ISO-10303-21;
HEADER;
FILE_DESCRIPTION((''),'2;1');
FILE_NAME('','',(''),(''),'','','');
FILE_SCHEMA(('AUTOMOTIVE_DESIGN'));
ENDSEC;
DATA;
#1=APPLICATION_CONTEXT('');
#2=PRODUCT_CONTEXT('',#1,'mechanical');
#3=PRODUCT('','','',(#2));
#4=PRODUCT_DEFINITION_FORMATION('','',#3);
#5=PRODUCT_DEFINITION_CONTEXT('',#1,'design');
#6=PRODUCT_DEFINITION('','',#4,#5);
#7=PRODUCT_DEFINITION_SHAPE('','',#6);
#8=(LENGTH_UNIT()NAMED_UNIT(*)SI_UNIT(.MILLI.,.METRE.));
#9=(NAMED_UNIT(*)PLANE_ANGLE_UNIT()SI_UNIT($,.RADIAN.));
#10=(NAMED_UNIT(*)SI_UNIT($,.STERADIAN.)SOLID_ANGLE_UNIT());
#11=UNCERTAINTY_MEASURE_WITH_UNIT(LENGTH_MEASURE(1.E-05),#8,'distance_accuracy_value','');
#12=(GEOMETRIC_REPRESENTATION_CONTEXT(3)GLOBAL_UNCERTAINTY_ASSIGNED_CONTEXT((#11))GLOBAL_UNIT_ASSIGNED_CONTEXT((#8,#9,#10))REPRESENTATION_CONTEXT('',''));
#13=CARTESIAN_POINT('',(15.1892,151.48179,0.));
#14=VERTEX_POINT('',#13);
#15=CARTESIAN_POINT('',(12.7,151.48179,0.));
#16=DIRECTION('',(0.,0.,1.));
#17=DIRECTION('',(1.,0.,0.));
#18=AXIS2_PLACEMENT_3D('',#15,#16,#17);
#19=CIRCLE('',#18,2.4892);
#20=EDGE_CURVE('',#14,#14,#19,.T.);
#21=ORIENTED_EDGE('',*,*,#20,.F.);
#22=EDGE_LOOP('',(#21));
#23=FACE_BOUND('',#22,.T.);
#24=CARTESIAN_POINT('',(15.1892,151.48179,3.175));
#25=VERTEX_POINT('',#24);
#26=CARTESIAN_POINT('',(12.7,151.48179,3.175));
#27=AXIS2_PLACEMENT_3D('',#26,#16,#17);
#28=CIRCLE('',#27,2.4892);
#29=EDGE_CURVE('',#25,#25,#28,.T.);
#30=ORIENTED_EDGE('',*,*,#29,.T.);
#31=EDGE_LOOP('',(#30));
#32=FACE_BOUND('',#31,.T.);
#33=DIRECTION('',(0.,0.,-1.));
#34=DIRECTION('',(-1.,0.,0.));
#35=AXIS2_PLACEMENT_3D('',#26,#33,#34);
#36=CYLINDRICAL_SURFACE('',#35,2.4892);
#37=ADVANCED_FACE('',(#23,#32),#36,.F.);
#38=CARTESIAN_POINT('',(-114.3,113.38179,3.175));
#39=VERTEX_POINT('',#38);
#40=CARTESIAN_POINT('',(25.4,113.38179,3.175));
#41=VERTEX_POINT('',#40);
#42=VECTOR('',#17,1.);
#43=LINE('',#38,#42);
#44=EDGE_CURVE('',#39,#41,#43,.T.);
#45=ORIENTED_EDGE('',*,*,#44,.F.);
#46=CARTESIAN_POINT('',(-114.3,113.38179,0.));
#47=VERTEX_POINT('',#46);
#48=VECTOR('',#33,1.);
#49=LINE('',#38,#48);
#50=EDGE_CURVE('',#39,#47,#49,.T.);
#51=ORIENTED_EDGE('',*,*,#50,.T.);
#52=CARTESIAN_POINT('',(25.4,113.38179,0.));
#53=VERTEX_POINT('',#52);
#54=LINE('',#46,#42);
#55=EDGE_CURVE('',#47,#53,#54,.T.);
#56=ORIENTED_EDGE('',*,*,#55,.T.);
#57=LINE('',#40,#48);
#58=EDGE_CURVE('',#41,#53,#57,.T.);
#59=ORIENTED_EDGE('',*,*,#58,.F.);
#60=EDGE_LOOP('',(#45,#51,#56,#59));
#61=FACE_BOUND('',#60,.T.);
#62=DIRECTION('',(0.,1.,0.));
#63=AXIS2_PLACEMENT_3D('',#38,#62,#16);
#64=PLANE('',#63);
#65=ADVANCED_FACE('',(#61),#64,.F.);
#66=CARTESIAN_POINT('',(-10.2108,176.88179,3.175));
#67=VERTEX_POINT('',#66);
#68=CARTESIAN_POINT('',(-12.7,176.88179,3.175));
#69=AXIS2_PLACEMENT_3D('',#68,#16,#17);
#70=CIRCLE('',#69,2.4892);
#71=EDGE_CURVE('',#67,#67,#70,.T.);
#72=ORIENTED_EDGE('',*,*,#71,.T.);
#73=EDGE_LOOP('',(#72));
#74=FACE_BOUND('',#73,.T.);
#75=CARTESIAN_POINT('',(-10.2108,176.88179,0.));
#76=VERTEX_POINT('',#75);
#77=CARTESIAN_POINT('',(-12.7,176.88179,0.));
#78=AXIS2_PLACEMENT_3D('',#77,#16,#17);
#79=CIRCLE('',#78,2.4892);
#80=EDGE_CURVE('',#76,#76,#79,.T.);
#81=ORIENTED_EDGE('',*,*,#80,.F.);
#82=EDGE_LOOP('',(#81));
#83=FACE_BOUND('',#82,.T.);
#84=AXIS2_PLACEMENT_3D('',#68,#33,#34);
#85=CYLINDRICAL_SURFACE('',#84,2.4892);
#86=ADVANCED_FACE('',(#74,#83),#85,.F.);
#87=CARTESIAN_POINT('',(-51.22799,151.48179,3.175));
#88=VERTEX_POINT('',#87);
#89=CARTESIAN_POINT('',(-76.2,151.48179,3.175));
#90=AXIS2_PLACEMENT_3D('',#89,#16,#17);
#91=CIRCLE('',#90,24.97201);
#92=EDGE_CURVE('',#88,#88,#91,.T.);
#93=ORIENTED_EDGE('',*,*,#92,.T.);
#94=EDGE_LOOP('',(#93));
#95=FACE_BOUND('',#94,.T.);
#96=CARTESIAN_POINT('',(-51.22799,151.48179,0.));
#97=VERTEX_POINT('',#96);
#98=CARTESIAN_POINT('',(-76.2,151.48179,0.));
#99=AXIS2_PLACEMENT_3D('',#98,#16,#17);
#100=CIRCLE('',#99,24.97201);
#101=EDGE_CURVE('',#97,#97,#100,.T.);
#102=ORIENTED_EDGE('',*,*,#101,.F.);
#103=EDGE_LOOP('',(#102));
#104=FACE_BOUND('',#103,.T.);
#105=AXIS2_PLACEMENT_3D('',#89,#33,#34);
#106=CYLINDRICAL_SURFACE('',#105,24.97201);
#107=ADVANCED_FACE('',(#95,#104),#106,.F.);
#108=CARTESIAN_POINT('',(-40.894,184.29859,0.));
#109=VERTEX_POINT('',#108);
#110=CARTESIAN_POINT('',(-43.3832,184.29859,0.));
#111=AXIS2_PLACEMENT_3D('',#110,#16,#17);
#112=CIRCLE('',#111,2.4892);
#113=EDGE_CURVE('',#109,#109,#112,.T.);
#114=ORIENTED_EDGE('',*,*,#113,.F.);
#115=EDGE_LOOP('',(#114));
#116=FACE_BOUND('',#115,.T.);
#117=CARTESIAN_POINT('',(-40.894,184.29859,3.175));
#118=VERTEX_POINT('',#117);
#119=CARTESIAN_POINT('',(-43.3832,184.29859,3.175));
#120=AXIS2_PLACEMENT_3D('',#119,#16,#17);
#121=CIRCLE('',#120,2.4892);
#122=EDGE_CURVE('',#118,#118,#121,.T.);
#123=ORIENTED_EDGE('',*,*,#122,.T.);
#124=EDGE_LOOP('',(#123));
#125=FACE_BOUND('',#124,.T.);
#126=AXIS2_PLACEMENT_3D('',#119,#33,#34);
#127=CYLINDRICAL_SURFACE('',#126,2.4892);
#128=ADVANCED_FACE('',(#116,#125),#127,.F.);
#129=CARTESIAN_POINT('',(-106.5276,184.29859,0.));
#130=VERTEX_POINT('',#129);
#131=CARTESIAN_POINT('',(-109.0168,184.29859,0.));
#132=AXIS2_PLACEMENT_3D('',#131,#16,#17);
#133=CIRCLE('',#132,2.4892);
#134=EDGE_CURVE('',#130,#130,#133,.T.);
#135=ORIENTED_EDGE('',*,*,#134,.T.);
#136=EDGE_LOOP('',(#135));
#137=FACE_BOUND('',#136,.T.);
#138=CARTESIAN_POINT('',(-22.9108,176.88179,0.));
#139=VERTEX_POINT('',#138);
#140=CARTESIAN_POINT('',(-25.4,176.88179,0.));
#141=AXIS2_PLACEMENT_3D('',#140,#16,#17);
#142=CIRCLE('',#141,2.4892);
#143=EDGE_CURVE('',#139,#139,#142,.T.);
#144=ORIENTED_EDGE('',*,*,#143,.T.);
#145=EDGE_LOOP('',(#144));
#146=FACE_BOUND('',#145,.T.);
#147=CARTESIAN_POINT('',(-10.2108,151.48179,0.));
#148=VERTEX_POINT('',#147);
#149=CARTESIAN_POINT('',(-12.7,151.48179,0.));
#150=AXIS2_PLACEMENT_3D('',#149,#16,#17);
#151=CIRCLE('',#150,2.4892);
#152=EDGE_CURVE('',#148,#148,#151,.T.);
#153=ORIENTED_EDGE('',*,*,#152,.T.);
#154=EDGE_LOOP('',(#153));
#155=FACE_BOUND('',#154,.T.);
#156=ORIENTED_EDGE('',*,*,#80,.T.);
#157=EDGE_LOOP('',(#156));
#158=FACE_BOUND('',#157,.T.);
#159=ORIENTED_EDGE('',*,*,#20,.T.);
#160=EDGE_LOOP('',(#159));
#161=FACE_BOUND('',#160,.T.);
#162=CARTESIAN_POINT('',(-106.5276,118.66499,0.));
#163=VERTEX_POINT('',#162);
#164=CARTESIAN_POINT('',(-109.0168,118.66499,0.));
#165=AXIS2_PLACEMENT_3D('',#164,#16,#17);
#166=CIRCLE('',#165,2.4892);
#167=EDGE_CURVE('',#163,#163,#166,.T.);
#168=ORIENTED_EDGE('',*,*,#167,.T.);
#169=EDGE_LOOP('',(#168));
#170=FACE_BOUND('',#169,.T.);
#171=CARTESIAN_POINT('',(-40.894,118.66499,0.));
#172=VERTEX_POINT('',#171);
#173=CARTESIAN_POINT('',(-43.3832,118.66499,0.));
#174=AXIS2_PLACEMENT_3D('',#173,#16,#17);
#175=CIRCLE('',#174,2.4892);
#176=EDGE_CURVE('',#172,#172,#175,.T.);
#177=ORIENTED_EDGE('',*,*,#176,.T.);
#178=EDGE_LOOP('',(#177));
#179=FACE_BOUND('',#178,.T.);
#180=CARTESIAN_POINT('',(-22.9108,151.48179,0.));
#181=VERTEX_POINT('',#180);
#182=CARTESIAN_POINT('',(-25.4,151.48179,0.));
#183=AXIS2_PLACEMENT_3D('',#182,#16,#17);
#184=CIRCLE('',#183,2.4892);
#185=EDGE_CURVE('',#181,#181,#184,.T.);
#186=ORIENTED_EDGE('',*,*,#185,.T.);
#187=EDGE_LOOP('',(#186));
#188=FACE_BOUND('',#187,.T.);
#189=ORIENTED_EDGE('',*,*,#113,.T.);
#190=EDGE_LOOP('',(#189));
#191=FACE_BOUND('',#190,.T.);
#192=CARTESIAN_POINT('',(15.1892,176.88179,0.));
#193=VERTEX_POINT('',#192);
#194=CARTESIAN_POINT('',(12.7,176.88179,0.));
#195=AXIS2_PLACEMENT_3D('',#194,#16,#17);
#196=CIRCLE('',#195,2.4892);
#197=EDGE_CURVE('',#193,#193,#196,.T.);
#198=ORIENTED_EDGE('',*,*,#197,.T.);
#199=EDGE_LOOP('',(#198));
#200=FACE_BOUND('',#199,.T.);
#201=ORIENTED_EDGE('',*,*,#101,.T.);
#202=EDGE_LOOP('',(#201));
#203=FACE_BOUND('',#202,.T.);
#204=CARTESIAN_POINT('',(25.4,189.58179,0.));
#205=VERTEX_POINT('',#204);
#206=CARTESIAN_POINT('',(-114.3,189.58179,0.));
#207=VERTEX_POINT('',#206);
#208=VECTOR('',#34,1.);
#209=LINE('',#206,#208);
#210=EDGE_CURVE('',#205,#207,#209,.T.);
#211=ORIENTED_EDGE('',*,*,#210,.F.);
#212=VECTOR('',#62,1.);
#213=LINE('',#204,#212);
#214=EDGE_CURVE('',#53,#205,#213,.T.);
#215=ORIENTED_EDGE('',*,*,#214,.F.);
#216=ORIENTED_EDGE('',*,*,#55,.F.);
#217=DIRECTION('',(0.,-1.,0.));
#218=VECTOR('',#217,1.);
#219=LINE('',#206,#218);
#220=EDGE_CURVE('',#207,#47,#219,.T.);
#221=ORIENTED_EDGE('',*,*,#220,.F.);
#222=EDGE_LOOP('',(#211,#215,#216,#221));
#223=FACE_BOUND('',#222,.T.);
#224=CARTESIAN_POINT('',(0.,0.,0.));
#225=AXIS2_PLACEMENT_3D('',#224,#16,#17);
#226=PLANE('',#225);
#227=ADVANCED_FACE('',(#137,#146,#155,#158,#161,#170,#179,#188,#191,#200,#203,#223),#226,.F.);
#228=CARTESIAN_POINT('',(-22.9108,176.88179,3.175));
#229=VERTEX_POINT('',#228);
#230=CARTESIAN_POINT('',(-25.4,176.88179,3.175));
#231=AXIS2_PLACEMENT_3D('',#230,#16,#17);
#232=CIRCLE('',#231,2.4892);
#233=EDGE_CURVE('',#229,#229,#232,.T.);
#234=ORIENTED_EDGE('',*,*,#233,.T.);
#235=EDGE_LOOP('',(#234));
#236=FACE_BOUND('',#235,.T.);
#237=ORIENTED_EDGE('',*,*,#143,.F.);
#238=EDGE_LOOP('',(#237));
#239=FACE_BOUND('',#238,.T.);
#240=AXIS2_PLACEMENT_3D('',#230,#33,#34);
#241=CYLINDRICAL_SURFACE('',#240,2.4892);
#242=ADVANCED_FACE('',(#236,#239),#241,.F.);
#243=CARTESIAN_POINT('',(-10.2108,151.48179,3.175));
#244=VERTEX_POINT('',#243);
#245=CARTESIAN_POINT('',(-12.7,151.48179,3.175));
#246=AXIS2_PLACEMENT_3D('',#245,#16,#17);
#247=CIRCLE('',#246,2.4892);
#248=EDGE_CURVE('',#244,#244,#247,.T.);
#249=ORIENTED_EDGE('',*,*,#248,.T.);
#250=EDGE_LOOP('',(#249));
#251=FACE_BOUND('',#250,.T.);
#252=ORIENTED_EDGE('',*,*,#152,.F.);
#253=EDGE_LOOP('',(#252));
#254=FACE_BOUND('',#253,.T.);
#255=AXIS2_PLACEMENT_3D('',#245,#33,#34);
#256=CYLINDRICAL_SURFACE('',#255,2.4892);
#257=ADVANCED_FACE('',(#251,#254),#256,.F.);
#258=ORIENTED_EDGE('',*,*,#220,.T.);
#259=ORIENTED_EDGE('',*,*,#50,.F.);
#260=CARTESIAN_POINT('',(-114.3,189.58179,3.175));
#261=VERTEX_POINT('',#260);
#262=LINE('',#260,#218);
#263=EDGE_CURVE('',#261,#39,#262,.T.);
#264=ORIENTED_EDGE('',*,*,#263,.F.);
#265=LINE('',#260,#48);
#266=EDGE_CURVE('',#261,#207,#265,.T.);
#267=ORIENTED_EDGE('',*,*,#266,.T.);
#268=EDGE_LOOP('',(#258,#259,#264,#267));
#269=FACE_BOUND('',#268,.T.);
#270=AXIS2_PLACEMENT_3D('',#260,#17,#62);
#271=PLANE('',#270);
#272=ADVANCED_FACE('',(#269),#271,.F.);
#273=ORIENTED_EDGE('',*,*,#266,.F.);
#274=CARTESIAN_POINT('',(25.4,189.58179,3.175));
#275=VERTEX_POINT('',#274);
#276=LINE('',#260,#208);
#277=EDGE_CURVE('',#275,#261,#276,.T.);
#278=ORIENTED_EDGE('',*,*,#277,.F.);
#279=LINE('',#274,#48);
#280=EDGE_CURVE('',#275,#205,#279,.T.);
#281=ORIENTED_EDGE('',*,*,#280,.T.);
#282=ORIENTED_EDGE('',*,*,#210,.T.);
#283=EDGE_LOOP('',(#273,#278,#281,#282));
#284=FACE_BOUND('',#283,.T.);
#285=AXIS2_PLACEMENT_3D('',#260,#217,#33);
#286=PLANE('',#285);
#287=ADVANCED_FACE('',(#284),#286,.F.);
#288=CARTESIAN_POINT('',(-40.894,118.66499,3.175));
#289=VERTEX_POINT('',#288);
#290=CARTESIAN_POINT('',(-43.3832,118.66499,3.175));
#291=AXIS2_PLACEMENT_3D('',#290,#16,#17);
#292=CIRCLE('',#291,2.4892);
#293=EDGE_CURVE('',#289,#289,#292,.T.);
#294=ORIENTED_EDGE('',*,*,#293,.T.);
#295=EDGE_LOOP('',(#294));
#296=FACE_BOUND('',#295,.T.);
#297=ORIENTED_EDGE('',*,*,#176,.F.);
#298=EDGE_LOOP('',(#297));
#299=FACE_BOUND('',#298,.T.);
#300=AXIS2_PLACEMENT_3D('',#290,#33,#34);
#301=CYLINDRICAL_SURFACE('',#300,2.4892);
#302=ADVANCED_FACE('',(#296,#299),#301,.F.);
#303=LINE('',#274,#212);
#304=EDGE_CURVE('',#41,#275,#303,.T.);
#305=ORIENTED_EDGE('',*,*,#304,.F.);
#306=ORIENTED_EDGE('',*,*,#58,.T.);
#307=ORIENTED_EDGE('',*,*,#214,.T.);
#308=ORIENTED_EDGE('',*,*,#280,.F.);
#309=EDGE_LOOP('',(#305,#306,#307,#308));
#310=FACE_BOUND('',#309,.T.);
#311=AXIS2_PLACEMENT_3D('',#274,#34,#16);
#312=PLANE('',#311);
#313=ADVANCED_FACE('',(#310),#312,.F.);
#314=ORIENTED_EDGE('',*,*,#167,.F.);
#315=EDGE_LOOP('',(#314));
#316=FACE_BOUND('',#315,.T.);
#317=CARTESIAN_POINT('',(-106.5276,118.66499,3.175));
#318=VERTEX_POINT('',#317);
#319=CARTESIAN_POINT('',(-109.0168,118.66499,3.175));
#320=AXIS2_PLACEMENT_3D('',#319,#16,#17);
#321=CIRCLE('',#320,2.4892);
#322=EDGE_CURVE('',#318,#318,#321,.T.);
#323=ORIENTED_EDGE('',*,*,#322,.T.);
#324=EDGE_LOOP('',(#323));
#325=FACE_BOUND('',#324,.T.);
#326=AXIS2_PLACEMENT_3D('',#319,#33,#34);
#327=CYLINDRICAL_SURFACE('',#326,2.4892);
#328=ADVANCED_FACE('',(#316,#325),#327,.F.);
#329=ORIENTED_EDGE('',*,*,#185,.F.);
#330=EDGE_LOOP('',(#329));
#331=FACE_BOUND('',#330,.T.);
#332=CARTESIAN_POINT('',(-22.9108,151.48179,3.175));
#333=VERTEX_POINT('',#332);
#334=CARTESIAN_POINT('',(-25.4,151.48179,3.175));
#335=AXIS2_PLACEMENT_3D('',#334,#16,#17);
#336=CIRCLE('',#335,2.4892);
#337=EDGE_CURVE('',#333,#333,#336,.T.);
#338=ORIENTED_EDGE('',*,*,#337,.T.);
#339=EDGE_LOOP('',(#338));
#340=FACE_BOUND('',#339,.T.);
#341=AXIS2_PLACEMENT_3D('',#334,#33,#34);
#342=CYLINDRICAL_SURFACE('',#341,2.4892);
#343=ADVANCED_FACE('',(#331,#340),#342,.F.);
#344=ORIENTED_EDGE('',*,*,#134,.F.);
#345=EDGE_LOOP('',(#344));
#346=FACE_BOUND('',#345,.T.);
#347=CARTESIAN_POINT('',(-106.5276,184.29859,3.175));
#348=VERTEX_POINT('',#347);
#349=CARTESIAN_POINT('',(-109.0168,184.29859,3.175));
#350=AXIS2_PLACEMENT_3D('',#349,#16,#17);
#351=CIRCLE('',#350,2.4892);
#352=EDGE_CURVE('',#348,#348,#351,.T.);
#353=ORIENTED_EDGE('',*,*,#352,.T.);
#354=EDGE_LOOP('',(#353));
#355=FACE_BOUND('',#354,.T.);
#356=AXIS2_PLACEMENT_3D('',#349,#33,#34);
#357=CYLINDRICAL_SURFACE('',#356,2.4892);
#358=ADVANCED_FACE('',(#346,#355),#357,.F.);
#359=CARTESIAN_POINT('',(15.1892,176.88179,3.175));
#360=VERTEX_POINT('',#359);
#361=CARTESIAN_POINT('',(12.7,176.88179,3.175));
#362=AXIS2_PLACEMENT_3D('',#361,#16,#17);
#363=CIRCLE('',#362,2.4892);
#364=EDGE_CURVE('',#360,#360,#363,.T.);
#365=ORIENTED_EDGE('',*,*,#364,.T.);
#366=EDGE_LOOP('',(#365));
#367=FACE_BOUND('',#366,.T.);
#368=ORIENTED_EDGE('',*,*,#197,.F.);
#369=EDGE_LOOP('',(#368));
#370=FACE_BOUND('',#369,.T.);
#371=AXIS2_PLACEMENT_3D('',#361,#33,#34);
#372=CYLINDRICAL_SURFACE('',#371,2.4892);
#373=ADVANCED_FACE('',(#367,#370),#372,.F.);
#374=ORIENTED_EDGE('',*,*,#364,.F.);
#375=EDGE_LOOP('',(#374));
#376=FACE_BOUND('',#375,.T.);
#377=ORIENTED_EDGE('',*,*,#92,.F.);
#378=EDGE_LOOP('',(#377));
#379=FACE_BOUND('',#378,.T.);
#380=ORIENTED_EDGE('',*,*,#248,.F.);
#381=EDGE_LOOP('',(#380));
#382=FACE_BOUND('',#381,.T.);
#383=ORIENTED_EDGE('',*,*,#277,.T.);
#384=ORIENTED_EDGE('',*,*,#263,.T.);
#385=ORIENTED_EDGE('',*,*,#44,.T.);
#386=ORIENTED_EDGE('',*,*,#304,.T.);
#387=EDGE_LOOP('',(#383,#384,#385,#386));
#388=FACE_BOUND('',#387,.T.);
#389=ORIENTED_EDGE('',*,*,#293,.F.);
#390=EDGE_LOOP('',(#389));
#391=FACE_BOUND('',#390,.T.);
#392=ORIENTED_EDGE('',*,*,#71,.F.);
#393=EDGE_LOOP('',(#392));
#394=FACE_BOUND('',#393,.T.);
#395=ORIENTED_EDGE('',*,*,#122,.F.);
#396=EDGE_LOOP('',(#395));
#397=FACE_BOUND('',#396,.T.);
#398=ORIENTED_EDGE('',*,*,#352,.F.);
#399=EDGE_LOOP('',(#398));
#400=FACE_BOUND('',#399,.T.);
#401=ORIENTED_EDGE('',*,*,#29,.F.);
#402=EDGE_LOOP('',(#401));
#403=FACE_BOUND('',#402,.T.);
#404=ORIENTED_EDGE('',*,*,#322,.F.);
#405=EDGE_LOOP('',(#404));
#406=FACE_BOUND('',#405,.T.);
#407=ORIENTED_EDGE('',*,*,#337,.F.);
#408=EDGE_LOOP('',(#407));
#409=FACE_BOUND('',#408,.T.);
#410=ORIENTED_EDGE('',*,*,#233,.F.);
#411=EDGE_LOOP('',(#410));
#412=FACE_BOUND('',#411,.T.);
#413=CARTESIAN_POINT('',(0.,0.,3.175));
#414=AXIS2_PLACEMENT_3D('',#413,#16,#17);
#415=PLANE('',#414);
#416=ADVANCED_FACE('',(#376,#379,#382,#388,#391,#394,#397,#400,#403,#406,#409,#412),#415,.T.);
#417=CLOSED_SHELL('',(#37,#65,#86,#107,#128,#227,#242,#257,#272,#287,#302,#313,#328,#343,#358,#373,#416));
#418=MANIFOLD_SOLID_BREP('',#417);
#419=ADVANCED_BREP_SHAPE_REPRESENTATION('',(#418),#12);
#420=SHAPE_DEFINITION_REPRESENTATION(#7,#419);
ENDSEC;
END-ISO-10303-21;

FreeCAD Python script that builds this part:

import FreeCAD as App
import Part
import Sketcher
from FreeCAD import Vector
Q = App.Units.Quantity


def add_polygon(sketch, points):
    """Adds a closed chain of lines whose ends are joined by coincident constraints."""
    first, n = sketch.GeometryCount, len(points)
    for a, b in zip(points, points[1:] + points[:1]):
        sketch.addGeometry(Part.LineSegment(App.Vector(*a, 0), App.Vector(*b, 0)), False)
    for i in range(n):
        sketch.addConstraint(Sketcher.Constraint("Coincident", first + i, 2, first + (i + 1) % n, 1))

doc = App.newDocument("Part")
body = doc.addObject("PartDesign::Body", "Body")

# Sketch on XY plane
sketch1 = body.newObject("Sketcher::SketchObject", "Sketch")
sketch1.AttachmentSupport = (doc.getObject("XY_Plane"), [""])
sketch1.MapMode = "FlatFace"
add_polygon(sketch1, [(-114.3, 189.58179), (-114.3, 113.38179), (25.4, 113.38179), (25.4, 189.58179)])  # lines 0-3
sketch1.addGeometry(Part.Circle(Vector(-109.0168, 118.66499, 0), Vector(0, 0, 1), 2.4892), False)  # 4
sketch1.addGeometry(Part.Circle(Vector(-76.2, 151.48179, 0), Vector(0, 0, 1), 24.97201), False)  # 5
sketch1.addGeometry(Part.Circle(Vector(-43.3832, 118.66499, 0), Vector(0, 0, 1), 2.4892), False)  # 6
sketch1.addGeometry(Part.Circle(Vector(-25.4, 151.48179, 0), Vector(0, 0, 1), 2.4892), False)  # 7
sketch1.addGeometry(Part.Circle(Vector(-12.7, 151.48179, 0), Vector(0, 0, 1), 2.4892), False)  # 8
sketch1.addGeometry(Part.Circle(Vector(12.7, 151.48179, 0), Vector(0, 0, 1), 2.4892), False)  # 9
sketch1.addGeometry(Part.Circle(Vector(-109.0168, 184.29859, 0), Vector(0, 0, 1), 2.4892), False)  # 10
sketch1.addGeometry(Part.Circle(Vector(-25.4, 176.88179, 0), Vector(0, 0, 1), 2.4892), False)  # 11
sketch1.addGeometry(Part.Circle(Vector(-43.3832, 184.29859, 0), Vector(0, 0, 1), 2.4892), False)  # 12
sketch1.addGeometry(Part.Circle(Vector(-12.7, 176.88179, 0), Vector(0, 0, 1), 2.4892), False)  # 13
sketch1.addGeometry(Part.Circle(Vector(12.7, 176.88179, 0), Vector(0, 0, 1), 2.4892), False)  # 14
sketch1.addConstraint([
    Sketcher.Constraint("Vertical", 0),
    Sketcher.Constraint("Horizontal", 1),
    Sketcher.Constraint("Vertical", 2),
    Sketcher.Constraint("Horizontal", 3),
    Sketcher.Constraint("Equal", 4, 6),
    Sketcher.Constraint("Equal", 6, 7),
    Sketcher.Constraint("Equal", 7, 8),
    Sketcher.Constraint("Equal", 8, 9),
    Sketcher.Constraint("Equal", 9, 10),
    Sketcher.Constraint("Equal", 10, 11),
    Sketcher.Constraint("Equal", 11, 12),
    Sketcher.Constraint("Equal", 12, 13),
    Sketcher.Constraint("Equal", 13, 14),
    Sketcher.Constraint("Symmetric", 8, 3, 9, 3, -2),
    Sketcher.Constraint("Symmetric", 13, 3, 14, 3, -2),
    Sketcher.Constraint("Horizontal", 4, 3, 6, 3),
    Sketcher.Constraint("Horizontal", 5, 3, 7, 3),
    Sketcher.Constraint("Horizontal", 7, 3, 8, 3),
    Sketcher.Constraint("Horizontal", 10, 3, 12, 3),
    Sketcher.Constraint("Horizontal", 11, 3, 13, 3),
    Sketcher.Constraint("Vertical", 4, 3, 10, 3),
    Sketcher.Constraint("Vertical", 7, 3, 11, 3),
    Sketcher.Constraint("Vertical", 6, 3, 12, 3),
    Sketcher.Constraint("Vertical", 8, 3, 13, 3),
    Sketcher.Constraint("DistanceY", 0, 2, 0, 1, Q("3 in")),
    Sketcher.Constraint("Diameter", 4, Q("0.196 in")),
    Sketcher.Constraint("DistanceX", 1, 1, 1, 2, Q("5.5 in")),
    Sketcher.Constraint("DistanceX", 5, 3, -1, 1, Q("3 in")),
    Sketcher.Constraint("DistanceX", 7, 3, -1, 1, Q("1 in")),
    Sketcher.Constraint("DistanceX", -1, 1, 1, 2, Q("1 in")),
    Sketcher.Constraint("DistanceX", 8, 3, 9, 3, Q("1 in")),
    Sketcher.Constraint("DistanceY", 7, 3, 11, 3, Q("1 in")),
    Sketcher.Constraint("Diameter", 5, Q("1.9663 in")),
    Sketcher.Constraint("DistanceY", 0, 2, 5, 3, Q("1.5 in")),
    Sketcher.Constraint("DistanceX", 4, 3, -1, 1, Q("4.292 in")),
    Sketcher.Constraint("DistanceX", 6, 3, -1, 1, Q("1.708 in")),
    Sketcher.Constraint("DistanceY", 4, 3, 5, 3, Q("1.292 in")),
    Sketcher.Constraint("DistanceY", 5, 3, 10, 3, Q("1.292 in")),
    Sketcher.Constraint("DistanceY", -1, 1, 4, 3, Q("118.66499 mm")),
])
pad1 = body.newObject("PartDesign::Pad", "Pad")
pad1.Profile = sketch1
pad1.Length = Q("0.125 in")

doc.recompute()
